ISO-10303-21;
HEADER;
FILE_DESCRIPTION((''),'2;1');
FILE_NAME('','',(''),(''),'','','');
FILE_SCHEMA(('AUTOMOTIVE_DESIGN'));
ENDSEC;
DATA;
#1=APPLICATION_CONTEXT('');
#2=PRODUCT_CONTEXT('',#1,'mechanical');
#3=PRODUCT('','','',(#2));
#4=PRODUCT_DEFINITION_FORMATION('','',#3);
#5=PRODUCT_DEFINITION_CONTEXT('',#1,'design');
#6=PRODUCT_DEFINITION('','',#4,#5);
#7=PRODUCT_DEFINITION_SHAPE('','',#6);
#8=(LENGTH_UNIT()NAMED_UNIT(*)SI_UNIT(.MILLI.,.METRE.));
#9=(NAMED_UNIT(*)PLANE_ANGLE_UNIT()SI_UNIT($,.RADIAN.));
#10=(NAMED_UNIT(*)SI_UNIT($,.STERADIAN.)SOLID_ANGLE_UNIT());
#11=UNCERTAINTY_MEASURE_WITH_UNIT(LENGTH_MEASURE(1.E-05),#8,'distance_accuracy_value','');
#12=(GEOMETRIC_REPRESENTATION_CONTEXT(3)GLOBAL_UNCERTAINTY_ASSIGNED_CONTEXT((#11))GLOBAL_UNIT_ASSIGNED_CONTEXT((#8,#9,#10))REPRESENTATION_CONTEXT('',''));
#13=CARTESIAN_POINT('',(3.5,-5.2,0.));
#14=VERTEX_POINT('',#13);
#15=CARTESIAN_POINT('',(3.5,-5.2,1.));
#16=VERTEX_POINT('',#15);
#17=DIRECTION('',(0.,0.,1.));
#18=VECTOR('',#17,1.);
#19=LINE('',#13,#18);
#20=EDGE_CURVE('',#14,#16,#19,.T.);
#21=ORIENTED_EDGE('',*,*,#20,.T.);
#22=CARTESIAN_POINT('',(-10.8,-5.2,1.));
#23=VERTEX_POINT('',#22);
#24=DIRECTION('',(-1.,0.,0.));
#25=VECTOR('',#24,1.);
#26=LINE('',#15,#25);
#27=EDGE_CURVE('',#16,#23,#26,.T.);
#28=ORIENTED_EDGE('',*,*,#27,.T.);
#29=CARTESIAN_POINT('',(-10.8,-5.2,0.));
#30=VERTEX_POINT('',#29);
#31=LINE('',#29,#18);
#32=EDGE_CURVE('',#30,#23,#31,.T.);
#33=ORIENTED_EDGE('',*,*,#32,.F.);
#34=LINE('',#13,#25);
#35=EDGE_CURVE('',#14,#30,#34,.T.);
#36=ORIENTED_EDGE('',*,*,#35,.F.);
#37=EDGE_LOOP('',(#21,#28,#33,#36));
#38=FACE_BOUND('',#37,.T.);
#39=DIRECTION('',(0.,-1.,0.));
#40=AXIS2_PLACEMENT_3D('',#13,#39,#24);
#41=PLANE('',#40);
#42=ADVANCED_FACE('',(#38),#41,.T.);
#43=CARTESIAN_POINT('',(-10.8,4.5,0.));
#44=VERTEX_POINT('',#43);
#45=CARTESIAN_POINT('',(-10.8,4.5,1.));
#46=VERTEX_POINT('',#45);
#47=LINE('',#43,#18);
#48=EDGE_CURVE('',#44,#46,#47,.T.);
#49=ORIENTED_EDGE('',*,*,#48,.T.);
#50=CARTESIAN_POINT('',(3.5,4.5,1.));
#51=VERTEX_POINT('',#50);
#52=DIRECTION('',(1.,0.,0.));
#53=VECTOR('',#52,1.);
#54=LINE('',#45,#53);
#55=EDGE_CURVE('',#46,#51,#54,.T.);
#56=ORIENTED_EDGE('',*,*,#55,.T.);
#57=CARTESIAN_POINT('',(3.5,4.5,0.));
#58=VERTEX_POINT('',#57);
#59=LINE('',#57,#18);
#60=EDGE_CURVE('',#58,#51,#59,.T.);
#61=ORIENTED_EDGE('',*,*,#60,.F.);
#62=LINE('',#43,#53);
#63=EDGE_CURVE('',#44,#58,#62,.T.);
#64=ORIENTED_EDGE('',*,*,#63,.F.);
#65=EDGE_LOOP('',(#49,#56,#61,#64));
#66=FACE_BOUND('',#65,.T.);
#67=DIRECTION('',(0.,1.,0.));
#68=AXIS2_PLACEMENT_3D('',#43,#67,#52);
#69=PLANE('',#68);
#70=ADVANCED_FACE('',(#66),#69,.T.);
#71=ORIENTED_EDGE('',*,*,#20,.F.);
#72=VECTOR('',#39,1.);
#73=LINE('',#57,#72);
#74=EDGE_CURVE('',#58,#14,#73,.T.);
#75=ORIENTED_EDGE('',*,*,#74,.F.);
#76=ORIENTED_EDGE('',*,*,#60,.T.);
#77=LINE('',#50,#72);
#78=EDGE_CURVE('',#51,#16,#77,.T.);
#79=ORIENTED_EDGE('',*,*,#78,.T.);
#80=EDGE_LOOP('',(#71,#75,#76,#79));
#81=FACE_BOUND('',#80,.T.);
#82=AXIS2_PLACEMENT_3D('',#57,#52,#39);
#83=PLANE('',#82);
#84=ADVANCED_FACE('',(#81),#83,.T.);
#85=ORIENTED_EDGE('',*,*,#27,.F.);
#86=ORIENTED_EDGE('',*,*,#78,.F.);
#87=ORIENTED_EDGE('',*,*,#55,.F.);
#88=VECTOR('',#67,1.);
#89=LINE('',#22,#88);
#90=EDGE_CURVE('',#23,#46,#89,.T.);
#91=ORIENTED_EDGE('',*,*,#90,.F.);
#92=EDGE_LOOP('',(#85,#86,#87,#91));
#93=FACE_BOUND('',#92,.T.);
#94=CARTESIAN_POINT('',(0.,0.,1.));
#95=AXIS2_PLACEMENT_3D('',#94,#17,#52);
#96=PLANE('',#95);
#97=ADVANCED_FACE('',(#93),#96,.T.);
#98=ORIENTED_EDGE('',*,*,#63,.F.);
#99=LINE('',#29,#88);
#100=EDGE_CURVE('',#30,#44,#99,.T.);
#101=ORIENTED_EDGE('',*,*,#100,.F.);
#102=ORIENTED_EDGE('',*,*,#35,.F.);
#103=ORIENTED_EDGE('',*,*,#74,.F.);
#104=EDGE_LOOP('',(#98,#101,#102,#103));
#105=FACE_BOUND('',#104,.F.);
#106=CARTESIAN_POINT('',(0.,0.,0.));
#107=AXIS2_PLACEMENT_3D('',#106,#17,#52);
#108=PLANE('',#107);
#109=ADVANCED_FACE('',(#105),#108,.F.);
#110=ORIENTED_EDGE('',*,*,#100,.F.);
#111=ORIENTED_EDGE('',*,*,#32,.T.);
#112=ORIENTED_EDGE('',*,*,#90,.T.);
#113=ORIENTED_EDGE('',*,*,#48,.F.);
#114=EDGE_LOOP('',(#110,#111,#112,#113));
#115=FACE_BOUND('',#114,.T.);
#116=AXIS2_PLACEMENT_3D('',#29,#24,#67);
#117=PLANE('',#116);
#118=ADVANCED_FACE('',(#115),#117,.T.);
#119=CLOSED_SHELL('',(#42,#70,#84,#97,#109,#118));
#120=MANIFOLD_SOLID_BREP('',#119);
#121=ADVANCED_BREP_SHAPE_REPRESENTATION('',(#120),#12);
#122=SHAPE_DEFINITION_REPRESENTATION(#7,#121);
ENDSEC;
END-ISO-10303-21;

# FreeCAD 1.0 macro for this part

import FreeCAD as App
import Part
import Sketcher


def add_polygon(sketch, points):
    """Adds a closed chain of lines whose ends are joined by coincident constraints."""
    first, n = sketch.GeometryCount, len(points)
    for a, b in zip(points, points[1:] + points[:1]):
        sketch.addGeometry(Part.LineSegment(App.Vector(*a, 0), App.Vector(*b, 0)), False)
    for i in range(n):
        sketch.addConstraint(Sketcher.Constraint("Coincident", first + i, 2, first + (i + 1) % n, 1))

doc = App.newDocument("Part")
body = doc.addObject("PartDesign::Body", "Body")

# Sketch on XY plane
sketch1 = body.newObject("Sketcher::SketchObject", "Sketch")
sketch1.AttachmentSupport = (doc.getObject("XY_Plane"), [""])
sketch1.MapMode = "FlatFace"
add_polygon(sketch1, [(4, 4), (-11, 4), (-11, -5), (4, -5)])  # lines 0-3
sketch1.addConstraint([
    Sketcher.Constraint("Horizontal", 0),
    Sketcher.Constraint("Vertical", 1),
    Sketcher.Constraint("Horizontal", 2),
    Sketcher.Constraint("Vertical", 3),
    Sketcher.Constraint("DistanceX", 0, 2, 0, 1, 14.3),
    Sketcher.Constraint("DistanceY", 1, 2, 1, 1, 9.7),
    Sketcher.Constraint("DistanceX", 0, 2, -1, 1, 10.8),
    Sketcher.Constraint("DistanceY", -1, 1, 0, 2, 4.5),
])
pad1 = body.newObject("PartDesign::Pad", "Pad")
pad1.Profile = sketch1
pad1.Length = 1

doc.recompute()
